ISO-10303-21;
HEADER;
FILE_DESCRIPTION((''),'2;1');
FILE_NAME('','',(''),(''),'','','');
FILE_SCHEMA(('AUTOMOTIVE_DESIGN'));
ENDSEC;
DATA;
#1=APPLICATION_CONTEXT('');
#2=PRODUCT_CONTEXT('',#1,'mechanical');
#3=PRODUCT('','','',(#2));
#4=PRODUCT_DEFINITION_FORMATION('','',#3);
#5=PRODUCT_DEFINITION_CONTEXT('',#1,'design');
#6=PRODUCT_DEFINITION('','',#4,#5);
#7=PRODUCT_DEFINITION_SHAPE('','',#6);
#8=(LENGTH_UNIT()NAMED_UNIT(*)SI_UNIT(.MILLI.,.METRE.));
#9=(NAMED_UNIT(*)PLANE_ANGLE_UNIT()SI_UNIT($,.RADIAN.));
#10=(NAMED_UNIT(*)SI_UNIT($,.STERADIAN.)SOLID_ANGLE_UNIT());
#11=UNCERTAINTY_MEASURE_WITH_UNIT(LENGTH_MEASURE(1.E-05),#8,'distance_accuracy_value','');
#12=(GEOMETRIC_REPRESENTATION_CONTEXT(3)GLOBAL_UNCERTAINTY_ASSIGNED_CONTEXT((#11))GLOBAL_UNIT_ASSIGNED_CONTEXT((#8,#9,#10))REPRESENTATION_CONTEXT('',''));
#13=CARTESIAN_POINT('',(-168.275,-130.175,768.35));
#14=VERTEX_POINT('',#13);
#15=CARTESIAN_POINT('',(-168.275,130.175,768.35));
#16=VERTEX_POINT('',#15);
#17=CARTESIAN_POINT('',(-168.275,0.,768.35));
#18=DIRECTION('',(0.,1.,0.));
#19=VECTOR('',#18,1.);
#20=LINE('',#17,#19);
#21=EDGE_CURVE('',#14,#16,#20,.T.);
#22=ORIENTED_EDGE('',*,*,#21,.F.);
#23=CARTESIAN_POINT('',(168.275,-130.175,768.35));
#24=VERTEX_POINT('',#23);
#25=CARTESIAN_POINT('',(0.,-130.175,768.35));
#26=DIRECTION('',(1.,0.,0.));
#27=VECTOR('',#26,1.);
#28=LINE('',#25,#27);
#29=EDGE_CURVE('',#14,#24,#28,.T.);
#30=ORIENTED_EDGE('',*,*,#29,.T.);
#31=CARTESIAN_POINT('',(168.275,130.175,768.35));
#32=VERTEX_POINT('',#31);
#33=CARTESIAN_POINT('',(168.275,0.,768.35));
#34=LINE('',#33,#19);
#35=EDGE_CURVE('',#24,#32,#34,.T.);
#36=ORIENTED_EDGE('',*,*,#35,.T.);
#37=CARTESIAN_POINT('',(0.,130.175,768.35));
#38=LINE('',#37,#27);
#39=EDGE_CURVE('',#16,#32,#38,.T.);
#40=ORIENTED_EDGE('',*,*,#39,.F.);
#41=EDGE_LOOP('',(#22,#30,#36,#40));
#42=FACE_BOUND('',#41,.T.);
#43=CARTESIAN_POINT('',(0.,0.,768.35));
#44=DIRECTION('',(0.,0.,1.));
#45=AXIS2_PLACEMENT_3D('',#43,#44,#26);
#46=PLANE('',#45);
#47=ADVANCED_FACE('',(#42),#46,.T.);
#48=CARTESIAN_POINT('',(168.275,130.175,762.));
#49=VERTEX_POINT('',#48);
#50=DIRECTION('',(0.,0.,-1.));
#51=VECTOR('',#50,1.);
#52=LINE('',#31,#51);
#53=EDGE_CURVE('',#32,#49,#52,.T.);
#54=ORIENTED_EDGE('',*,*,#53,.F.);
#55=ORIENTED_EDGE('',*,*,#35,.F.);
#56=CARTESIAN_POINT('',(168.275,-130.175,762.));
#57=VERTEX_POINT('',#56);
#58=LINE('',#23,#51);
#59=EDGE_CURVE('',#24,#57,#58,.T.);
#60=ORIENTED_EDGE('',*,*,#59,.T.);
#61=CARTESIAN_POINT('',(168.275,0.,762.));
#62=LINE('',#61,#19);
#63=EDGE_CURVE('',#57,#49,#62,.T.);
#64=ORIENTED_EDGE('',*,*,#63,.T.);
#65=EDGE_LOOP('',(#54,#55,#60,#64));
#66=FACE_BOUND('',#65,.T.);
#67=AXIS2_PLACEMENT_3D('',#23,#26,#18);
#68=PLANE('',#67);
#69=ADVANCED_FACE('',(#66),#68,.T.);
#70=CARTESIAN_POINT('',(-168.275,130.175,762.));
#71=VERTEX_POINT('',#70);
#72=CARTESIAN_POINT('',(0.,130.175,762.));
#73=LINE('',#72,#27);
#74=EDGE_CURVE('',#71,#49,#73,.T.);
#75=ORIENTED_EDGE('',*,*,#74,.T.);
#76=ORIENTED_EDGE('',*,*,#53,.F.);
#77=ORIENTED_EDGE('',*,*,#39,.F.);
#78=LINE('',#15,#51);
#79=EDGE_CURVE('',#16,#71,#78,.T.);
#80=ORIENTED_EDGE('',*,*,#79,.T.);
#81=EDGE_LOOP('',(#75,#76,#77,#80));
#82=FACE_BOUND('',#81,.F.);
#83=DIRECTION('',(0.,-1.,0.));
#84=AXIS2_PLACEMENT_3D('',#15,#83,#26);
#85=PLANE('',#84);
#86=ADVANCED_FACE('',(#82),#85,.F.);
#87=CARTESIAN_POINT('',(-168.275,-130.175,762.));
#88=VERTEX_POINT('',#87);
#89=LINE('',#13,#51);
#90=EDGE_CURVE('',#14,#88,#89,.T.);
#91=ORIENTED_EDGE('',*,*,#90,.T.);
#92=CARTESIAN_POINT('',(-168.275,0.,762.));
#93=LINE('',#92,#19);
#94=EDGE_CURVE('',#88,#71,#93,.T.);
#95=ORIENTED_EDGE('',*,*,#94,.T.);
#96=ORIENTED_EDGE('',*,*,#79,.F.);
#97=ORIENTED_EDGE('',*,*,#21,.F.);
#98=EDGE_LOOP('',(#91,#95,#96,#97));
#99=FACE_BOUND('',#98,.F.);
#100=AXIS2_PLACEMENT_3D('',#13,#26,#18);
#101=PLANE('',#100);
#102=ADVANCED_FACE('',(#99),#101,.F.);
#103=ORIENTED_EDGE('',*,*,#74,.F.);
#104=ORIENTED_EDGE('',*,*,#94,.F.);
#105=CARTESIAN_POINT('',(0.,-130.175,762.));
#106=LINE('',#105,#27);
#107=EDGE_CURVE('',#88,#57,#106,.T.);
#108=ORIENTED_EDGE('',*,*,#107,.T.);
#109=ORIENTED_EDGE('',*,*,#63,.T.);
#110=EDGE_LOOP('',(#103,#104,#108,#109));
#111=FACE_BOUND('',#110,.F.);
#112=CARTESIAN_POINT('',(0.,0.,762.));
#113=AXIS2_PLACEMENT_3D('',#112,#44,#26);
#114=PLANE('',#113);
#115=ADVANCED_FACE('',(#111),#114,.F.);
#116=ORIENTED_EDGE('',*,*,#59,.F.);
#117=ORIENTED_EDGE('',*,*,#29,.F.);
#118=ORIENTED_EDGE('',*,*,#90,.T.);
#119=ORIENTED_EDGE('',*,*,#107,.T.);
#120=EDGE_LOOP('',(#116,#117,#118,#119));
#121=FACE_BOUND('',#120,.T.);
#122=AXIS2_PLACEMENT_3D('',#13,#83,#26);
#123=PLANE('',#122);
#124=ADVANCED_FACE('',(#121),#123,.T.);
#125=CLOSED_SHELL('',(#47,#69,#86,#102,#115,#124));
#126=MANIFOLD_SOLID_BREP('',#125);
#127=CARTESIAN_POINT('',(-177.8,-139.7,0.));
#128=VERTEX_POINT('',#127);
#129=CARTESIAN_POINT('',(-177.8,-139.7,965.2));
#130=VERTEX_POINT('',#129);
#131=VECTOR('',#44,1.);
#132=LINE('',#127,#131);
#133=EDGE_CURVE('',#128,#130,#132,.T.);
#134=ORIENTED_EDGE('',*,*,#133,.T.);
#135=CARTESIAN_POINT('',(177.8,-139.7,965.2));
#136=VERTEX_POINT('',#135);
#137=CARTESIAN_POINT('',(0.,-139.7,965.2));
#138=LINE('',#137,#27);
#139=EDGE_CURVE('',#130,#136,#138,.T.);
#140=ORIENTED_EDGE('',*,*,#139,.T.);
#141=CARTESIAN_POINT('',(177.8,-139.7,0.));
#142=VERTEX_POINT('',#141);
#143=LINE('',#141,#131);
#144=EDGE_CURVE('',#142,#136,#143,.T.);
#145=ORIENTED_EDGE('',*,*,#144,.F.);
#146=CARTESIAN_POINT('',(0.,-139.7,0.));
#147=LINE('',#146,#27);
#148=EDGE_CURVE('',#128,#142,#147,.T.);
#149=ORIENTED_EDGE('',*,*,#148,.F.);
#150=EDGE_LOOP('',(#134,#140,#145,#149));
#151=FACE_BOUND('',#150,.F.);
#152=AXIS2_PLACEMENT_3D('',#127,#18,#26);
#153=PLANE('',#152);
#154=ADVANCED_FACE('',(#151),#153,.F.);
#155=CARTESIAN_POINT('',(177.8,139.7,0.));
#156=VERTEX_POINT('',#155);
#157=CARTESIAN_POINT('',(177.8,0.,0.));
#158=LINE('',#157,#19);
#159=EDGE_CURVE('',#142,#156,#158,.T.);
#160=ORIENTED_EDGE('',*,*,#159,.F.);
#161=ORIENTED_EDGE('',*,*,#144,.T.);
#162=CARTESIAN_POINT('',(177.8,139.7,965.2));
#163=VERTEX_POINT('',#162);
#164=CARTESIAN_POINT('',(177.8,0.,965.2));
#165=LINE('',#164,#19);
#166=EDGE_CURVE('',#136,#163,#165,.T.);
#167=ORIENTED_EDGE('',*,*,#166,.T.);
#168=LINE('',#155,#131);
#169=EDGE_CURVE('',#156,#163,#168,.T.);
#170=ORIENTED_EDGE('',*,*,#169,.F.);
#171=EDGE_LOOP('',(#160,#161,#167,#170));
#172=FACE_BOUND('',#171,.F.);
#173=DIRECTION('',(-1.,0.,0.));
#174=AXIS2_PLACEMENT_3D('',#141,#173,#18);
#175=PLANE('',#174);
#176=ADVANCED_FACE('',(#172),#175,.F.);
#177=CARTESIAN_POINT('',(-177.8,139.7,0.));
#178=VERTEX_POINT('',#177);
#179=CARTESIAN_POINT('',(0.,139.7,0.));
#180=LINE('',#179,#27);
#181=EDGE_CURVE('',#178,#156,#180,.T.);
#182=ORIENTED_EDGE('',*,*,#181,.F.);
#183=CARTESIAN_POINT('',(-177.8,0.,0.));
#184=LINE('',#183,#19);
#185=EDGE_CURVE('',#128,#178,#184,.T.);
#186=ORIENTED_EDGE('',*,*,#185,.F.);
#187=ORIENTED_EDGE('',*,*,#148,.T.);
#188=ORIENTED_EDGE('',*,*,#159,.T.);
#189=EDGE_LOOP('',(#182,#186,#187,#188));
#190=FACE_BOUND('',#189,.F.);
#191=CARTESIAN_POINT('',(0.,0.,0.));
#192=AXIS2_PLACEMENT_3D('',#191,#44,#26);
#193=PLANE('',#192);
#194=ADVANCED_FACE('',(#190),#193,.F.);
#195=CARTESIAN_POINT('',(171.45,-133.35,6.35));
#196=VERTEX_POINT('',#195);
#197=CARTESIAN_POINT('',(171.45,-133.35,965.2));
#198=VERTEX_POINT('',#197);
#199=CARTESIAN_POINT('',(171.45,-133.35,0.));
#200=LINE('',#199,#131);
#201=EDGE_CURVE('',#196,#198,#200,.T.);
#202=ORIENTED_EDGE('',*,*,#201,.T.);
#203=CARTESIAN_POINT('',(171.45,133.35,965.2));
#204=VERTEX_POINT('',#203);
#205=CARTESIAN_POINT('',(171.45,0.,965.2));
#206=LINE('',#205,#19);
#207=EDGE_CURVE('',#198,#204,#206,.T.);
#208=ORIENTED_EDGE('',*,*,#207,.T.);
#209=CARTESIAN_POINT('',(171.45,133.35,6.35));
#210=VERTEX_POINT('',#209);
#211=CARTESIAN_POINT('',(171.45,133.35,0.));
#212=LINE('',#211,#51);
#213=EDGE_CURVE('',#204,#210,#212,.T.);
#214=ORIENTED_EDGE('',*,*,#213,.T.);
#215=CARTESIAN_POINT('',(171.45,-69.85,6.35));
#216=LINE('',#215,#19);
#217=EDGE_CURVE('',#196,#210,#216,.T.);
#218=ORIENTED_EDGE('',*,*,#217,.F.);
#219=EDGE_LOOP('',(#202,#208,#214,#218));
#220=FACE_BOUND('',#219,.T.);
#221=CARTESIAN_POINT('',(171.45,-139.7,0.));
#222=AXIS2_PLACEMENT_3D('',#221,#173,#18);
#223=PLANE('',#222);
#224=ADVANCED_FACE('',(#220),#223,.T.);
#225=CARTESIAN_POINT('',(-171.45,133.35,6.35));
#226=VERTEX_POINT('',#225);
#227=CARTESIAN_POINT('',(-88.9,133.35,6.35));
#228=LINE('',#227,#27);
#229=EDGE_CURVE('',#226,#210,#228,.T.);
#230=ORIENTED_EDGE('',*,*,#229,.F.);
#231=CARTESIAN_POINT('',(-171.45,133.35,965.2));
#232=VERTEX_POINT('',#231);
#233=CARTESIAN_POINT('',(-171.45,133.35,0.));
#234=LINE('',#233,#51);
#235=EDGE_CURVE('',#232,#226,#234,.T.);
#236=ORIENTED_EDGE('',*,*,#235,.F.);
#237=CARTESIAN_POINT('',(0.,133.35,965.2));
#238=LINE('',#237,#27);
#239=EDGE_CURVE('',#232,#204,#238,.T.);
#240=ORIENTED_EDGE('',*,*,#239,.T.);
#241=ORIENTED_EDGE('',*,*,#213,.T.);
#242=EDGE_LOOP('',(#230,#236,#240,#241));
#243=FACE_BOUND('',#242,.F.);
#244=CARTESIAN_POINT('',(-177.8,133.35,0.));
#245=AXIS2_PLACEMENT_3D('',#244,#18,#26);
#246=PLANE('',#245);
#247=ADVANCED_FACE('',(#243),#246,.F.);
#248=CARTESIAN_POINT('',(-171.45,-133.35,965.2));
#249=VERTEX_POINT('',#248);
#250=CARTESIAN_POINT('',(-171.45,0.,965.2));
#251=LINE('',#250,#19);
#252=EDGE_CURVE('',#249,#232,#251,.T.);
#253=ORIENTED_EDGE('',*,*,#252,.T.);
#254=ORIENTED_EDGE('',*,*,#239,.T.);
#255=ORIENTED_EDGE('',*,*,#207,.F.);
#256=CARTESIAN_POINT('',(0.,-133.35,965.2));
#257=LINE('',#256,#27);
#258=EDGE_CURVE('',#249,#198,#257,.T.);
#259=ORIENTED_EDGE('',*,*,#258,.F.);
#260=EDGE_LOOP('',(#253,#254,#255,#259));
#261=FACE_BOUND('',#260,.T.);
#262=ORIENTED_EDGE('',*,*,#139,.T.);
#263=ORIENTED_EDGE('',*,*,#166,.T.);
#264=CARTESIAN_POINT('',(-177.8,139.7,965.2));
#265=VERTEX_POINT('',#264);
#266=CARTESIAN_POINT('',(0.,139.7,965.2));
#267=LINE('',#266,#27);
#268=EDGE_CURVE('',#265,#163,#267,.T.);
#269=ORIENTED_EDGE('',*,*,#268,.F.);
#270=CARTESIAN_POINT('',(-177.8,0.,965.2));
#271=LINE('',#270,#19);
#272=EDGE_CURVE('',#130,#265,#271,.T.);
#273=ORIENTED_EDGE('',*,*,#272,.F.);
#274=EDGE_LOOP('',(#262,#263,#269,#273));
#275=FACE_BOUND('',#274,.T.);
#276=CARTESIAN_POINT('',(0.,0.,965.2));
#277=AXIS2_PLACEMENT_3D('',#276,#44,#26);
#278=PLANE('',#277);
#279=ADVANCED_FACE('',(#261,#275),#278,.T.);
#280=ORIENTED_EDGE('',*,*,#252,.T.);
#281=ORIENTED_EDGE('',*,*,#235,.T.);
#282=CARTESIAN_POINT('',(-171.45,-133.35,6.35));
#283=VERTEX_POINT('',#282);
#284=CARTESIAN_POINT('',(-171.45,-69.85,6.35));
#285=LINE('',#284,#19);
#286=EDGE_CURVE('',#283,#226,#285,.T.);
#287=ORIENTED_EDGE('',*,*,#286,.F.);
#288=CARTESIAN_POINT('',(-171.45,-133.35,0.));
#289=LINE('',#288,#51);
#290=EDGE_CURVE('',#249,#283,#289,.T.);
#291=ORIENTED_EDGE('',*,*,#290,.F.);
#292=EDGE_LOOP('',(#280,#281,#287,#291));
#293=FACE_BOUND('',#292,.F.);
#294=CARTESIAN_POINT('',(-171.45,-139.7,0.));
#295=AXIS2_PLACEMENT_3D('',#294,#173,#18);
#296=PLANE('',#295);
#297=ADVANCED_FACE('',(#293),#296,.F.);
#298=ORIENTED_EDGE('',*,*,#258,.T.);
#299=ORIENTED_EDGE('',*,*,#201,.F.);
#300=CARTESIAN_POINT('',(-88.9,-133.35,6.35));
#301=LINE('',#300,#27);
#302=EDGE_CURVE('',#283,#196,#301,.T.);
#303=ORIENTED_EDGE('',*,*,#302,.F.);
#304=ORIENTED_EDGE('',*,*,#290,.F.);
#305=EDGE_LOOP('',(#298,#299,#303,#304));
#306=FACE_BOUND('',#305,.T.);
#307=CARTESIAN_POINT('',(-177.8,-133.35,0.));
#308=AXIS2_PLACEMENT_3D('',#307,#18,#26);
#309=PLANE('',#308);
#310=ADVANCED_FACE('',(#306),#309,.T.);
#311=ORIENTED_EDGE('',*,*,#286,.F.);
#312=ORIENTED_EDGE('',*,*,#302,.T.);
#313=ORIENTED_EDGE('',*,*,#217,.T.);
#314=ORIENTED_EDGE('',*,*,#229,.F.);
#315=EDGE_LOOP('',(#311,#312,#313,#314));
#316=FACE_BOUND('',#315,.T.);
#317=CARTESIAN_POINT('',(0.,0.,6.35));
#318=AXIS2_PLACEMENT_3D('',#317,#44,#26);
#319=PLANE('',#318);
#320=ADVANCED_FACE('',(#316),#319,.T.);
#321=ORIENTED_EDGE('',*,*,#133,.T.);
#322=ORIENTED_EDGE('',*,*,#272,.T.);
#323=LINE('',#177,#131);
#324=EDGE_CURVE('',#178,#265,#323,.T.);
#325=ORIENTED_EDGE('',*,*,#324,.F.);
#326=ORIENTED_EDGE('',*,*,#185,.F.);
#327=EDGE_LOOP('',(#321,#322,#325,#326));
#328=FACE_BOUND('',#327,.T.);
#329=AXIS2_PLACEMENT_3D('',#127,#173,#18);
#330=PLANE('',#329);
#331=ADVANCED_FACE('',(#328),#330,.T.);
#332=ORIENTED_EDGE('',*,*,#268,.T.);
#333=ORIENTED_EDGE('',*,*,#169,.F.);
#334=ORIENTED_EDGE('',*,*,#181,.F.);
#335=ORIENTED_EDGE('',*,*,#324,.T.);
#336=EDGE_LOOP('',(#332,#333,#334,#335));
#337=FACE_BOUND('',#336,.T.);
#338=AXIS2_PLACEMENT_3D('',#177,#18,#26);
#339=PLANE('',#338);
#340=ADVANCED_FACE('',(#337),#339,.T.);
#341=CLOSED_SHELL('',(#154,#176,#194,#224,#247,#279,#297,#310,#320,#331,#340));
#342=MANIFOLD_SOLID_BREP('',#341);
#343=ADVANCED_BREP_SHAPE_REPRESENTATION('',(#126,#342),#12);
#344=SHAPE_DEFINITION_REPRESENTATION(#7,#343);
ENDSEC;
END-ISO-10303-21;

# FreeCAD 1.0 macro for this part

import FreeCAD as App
import Part
import Sketcher

V = App.Vector
Q = App.Units.Quantity


def faces_at(feature, points):
    """Names of the faces that lie closest to the given points."""
    faces = feature.Shape.Faces
    near = lambda p: min(range(len(faces)), key=lambda i: faces[i].distToShape(Part.Vertex(*p))[0])
    return sorted({f"Face{near(p) + 1}" for p in points})

doc = App.newDocument("Part")
body = doc.addObject("PartDesign::Body", "Body")

sketch1 = body.newObject("Sketcher::SketchObject", "Sketch")
sketch1.AttachmentSupport = (doc.getObject("XY_Plane"), [""])
sketch1.MapMode = "FlatFace"
sketch1.addGeometry(Part.LineSegment(V(-178, 140, 0), V(-178, -140, 0)), False)
sketch1.addGeometry(Part.LineSegment(V(-178, -140, 0), V(178, -140, 0)), False)
sketch1.addGeometry(Part.LineSegment(V(178, -140, 0), V(178, 140, 0)), False)
sketch1.addGeometry(Part.LineSegment(V(178, 140, 0), V(-178, 140, 0)), False)
sketch1.addConstraint(Sketcher.Constraint("Coincident", 0, 2, 1, 1))
sketch1.addConstraint(Sketcher.Constraint("Coincident", 1, 2, 2, 1))
sketch1.addConstraint(Sketcher.Constraint("Coincident", 2, 2, 3, 1))
sketch1.addConstraint(Sketcher.Constraint("Coincident", 3, 2, 0, 1))
sketch1.addConstraint(Sketcher.Constraint("Vertical", 0))
sketch1.addConstraint(Sketcher.Constraint("Horizontal", 1))
sketch1.addConstraint(Sketcher.Constraint("Vertical", 2))
sketch1.addConstraint(Sketcher.Constraint("Horizontal", 3))
sketch1.addConstraint(Sketcher.Constraint("Symmetric", 0, 2, 2, 2, -1, 1))
sketch1.addConstraint(Sketcher.Constraint("DistanceX", 1, 1, 1, 2, Q("14 in")))
sketch1.addConstraint(Sketcher.Constraint("DistanceY", 0, 2, 0, 1, Q("11 in")))
pad1 = body.newObject("PartDesign::Pad", "Pad")
pad1.Profile = sketch1
pad1.Length = Q("38 in")
doc.recompute()

thickness = body.newObject("PartDesign::Thickness", "Thickness")
thickness.Base = (pad1, faces_at(pad1, [(0, 0, 965.2)]))
thickness.Value = Q("0.25 in")
thickness.Reversed = True
thickness.Join = "Arc"
body2 = doc.addObject("PartDesign::Body", "Body001")

sketch2 = body2.newObject("Sketcher::SketchObject", "Sketch001")
sketch2.AttachmentSupport = (doc.getObject("XY_Plane001"), [""])
sketch2.MapMode = "FlatFace"
sketch2.AttachmentOffset = App.Placement(V(0, 0, 30.25 * 25.4), App.Rotation())
sketch2.addGeometry(Part.LineSegment(V(-168, 130, 0), V(-168, -130, 0)), False)
sketch2.addGeometry(Part.LineSegment(V(-168, -130, 0), V(168, -130, 0)), False)
sketch2.addGeometry(Part.LineSegment(V(168, -130, 0), V(168, 130, 0)), False)
sketch2.addGeometry(Part.LineSegment(V(168, 130, 0), V(-168, 130, 0)), False)
sketch2.addConstraint(Sketcher.Constraint("Coincident", 0, 2, 1, 1))
sketch2.addConstraint(Sketcher.Constraint("Coincident", 1, 2, 2, 1))
sketch2.addConstraint(Sketcher.Constraint("Coincident", 2, 2, 3, 1))
sketch2.addConstraint(Sketcher.Constraint("Coincident", 3, 2, 0, 1))
sketch2.addConstraint(Sketcher.Constraint("Vertical", 0))
sketch2.addConstraint(Sketcher.Constraint("Horizontal", 1))
sketch2.addConstraint(Sketcher.Constraint("Vertical", 2))
sketch2.addConstraint(Sketcher.Constraint("Horizontal", 3))
sketch2.addConstraint(Sketcher.Constraint("Symmetric", 0, 2, 2, 2, -1, 1))
sketch2.addConstraint(Sketcher.Constraint("DistanceX", 1, 1, 1, 2, Q("13.25 in")))
sketch2.addConstraint(Sketcher.Constraint("DistanceY", 0, 2, 0, 1, Q("10.25 in")))
pad2 = body2.newObject("PartDesign::Pad", "Pad001")
pad2.Profile = sketch2
pad2.Length = Q("0.25 in")
pad2.Reversed = True

doc.recompute()
